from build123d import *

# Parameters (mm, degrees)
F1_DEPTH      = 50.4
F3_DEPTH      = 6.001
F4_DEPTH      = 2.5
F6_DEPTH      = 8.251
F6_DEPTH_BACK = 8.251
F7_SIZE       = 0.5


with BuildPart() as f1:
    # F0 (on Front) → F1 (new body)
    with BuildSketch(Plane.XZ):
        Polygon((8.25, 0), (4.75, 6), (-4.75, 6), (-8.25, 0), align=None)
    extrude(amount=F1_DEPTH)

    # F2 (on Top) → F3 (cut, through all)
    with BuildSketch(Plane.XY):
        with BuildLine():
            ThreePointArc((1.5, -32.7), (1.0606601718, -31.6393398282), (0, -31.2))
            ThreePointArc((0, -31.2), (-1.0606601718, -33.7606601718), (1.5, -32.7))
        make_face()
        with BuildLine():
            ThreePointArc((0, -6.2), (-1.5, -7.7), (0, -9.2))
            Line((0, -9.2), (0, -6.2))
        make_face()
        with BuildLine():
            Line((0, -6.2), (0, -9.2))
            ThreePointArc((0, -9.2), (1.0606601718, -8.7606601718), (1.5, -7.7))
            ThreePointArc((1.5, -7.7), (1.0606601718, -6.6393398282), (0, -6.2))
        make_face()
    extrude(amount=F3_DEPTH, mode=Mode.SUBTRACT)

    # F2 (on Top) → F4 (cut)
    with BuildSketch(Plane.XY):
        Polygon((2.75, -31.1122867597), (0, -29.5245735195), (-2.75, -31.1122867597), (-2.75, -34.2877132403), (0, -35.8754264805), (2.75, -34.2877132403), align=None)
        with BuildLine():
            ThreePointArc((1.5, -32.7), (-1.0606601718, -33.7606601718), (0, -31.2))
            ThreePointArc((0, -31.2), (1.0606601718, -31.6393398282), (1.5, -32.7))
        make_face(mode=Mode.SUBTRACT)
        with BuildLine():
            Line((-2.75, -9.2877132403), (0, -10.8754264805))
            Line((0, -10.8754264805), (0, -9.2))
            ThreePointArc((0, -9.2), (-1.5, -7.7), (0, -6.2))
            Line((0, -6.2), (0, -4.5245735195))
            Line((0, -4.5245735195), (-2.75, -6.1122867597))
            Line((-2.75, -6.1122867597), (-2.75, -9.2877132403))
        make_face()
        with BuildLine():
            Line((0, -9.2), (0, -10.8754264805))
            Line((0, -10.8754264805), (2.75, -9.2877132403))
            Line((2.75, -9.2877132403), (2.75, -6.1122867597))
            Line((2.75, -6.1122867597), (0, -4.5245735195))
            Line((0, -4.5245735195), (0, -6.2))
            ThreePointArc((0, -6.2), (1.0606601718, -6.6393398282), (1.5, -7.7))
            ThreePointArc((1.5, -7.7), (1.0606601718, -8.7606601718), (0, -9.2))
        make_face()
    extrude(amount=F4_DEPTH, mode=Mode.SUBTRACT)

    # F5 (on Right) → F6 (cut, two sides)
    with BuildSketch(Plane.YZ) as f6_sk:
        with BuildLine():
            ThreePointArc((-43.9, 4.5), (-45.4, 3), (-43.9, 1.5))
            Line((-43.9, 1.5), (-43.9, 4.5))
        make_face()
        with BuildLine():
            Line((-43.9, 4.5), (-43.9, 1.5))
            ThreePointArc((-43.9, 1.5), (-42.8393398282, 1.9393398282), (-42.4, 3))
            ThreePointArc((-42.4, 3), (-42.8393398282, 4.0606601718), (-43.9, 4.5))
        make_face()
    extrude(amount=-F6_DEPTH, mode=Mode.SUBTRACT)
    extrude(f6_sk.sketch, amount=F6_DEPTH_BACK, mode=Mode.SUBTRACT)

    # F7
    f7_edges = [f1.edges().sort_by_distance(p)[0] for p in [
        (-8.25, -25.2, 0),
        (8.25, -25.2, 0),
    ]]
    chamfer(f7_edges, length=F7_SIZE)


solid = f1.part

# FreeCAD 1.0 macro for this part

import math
import FreeCAD as App
import Part
import Sketcher
from FreeCAD import Vector
Q = App.Units.Quantity


def edges_at(feature, points):
    """Names of the edges that pass closest to the given points."""
    edges = feature.Shape.Edges
    near = lambda p: min(range(len(edges)), key=lambda i: edges[i].distToShape(Part.Vertex(*p))[0])
    return sorted({f"Edge{near(p) + 1}" for p in points})

doc = App.newDocument("Part")
body = doc.addObject("PartDesign::Body", "Body")

sketch1 = body.newObject("Sketcher::SketchObject", "Sketch")
sketch1.AttachmentSupport = (doc.getObject("XZ_Plane"), [""])
sketch1.MapMode = "FlatFace"
sketch1.addGeometry([
    Part.LineSegment(Vector(8, 0, 0), Vector(5, 6, 0)),
    Part.LineSegment(Vector(5, 6, 0), Vector(-5, 6, 0)),
    Part.LineSegment(Vector(-5, 6, 0), Vector(-8, 0, 0)),
    Part.LineSegment(Vector(-8, 0, 0), Vector(8, 0, 0)),
], False)
sketch1.addConstraint([
    Sketcher.Constraint("Coincident", 0, 2, 1, 1),
    Sketcher.Constraint("Coincident", 1, 2, 2, 1),
    Sketcher.Constraint("Coincident", 2, 2, 3, 1),
    Sketcher.Constraint("Coincident", 3, 2, 0, 1),
    Sketcher.Constraint("Horizontal", 1),
    Sketcher.Constraint("Horizontal", 3),
    Sketcher.Constraint("Symmetric", 2, 2, 3, 2, -1, 1),
    Sketcher.Constraint("Equal", 0, 2),
    Sketcher.Constraint("DistanceX", 1, 2, 1, 1, Q("9.5 mm")),
    Sketcher.Constraint("DistanceX", 3, 1, 3, 2, Q("16.5 mm")),
    Sketcher.Constraint("DistanceY", -1, 1, 0, 2, Q("6 mm")),
])
pad1 = body.newObject("PartDesign::Pad", "Pad")
pad1.Profile = sketch1
pad1.Length = 50.4

sketch2 = body.newObject("Sketcher::SketchObject", "Sketch001")
sketch2.AttachmentSupport = (doc.getObject("XY_Plane"), [""])
sketch2.MapMode = "FlatFace"
sketch2.addGeometry([
    Part.ArcOfCircle(Part.Circle(Vector(0, -32.7, 0), Vector(0, 0, 1), 1.5), math.radians(0), math.radians(90)),
    Part.ArcOfCircle(Part.Circle(Vector(0, -32.7, 0), Vector(0, 0, 1), 1.5), math.radians(90), math.radians(360)),
    Part.ArcOfCircle(Part.Circle(Vector(0, -7.7, 0), Vector(0, 0, 1), 1.5), math.radians(90), math.radians(270)),
    Part.ArcOfCircle(Part.Circle(Vector(0, -7.7, 0), Vector(0, 0, 1), 1.5), math.radians(-90), math.radians(0)),
    Part.ArcOfCircle(Part.Circle(Vector(0, -7.7, 0), Vector(0, 0, 1), 1.5), math.radians(0), math.radians(90)),
], False)
sketch2.addConstraint([
    Sketcher.Constraint("Tangent", 0, 1, 1, 2),
    Sketcher.Constraint("Coincident", 1, 1, 0, 2),
    Sketcher.Constraint("Tangent", 2, 2, 3, 1),
    Sketcher.Constraint("Tangent", 3, 2, 4, 1),
    Sketcher.Constraint("Tangent", 4, 2, 2, 1),
    Sketcher.Constraint("Equal", 1, 2),
    Sketcher.Constraint("PointOnObject", 0, 3, -2),
    Sketcher.Constraint("PointOnObject", 2, 3, -2),
    Sketcher.Constraint("PointOnObject", 1, 1, -2),
    Sketcher.Constraint("PointOnObject", 2, 2, -2),
    Sketcher.Constraint("PointOnObject", 4, 2, -2),
    Sketcher.Constraint("Horizontal", 1, 3, 0, 1),
    Sketcher.Constraint("Horizontal", 4, 3, 3, 2),
    Sketcher.Constraint("Radius", 0, Q("1.5 mm")),
    Sketcher.Constraint("DistanceY", 0, 3, 2, 3, Q("25 mm")),
    Sketcher.Constraint("DistanceY", 0, 3, -1, 1, Q("32.7 mm")),
])
pocket1 = body.newObject("PartDesign::Pocket", "Pocket")
pocket1.Profile = sketch2
pocket1.Type = "ThroughAll"
pocket1.Reversed = True

sketch3 = body.newObject("Sketcher::SketchObject", "Sketch002")
sketch3.AttachmentSupport = (doc.getObject("XY_Plane"), [""])
sketch3.MapMode = "FlatFace"
sketch3.addGeometry([
    Part.LineSegment(Vector(2.8, -31.1, 0), Vector(0, -29.5, 0)),
    Part.LineSegment(Vector(0, -29.5, 0), Vector(-2.8, -31.1, 0)),
    Part.LineSegment(Vector(-2.8, -31.1, 0), Vector(-2.8, -34.3, 0)),
    Part.LineSegment(Vector(-2.8, -34.3, 0), Vector(0, -35.9, 0)),
    Part.LineSegment(Vector(0, -35.9, 0), Vector(2.8, -34.3, 0)),
    Part.LineSegment(Vector(2.8, -34.3, 0), Vector(2.8, -31.1, 0)),
    Part.ArcOfCircle(Part.Circle(Vector(0, -32.7, 0), Vector(0, 0, 1), 1.5), math.radians(0), math.radians(90)),
    Part.ArcOfCircle(Part.Circle(Vector(0, -32.7, 0), Vector(0, 0, 1), 1.5), math.radians(90), math.radians(360)),
    Part.LineSegment(Vector(-2.8, -9.3, 0), Vector(0, -10.9, 0)),
    Part.LineSegment(Vector(0, -10.9, 0), Vector(2.8, -9.3, 0)),
    Part.LineSegment(Vector(2.8, -9.3, 0), Vector(2.8, -6.1, 0)),
    Part.LineSegment(Vector(2.8, -6.1, 0), Vector(0, -4.5, 0)),
    Part.LineSegment(Vector(0, -4.5, 0), Vector(-2.8, -6.1, 0)),
    Part.LineSegment(Vector(-2.8, -6.1, 0), Vector(-2.8, -9.3, 0)),
    Part.ArcOfCircle(Part.Circle(Vector(0, -7.7, 0), Vector(0, 0, 1), 1.5), math.radians(90), math.radians(270)),
    Part.ArcOfCircle(Part.Circle(Vector(0, -7.7, 0), Vector(0, 0, 1), 1.5), math.radians(0), math.radians(90)),
    Part.ArcOfCircle(Part.Circle(Vector(0, -7.7, 0), Vector(0, 0, 1), 1.5), math.radians(-90), math.radians(0)),
], False)
sketch3.addConstraint([
    Sketcher.Constraint("Coincident", 0, 2, 1, 1),
    Sketcher.Constraint("Coincident", 1, 2, 2, 1),
    Sketcher.Constraint("Coincident", 2, 2, 3, 1),
    Sketcher.Constraint("Coincident", 3, 2, 4, 1),
    Sketcher.Constraint("Coincident", 4, 2, 5, 1),
    Sketcher.Constraint("Coincident", 5, 2, 0, 1),
    Sketcher.Constraint("Tangent", 6, 1, 7, 2),
    Sketcher.Constraint("Coincident", 7, 1, 6, 2),
    Sketcher.Constraint("Coincident", 8, 2, 9, 1),
    Sketcher.Constraint("Coincident", 9, 2, 10, 1),
    Sketcher.Constraint("Coincident", 10, 2, 11, 1),
    Sketcher.Constraint("Coincident", 11, 2, 12, 1),
    Sketcher.Constraint("Coincident", 12, 2, 13, 1),
    Sketcher.Constraint("Coincident", 13, 2, 8, 1),
    Sketcher.Constraint("Tangent", 14, 1, 15, 2),
    Sketcher.Constraint("Tangent", 15, 1, 16, 2),
    Sketcher.Constraint("Tangent", 16, 1, 14, 2),
    Sketcher.Constraint("Vertical", 2),
    Sketcher.Constraint("Vertical", 5),
    Sketcher.Constraint("Vertical", 10),
    Sketcher.Constraint("Vertical", 13),
    Sketcher.Constraint("Equal", 7, 14),
    Sketcher.Constraint("Symmetric", 2, 2, 4, 2, -2),
    Sketcher.Constraint("Symmetric", 10, 2, 12, 2, -2),
    Sketcher.Constraint("PointOnObject", 6, 3, -2),
    Sketcher.Constraint("PointOnObject", 14, 3, -2),
    Sketcher.Constraint("PointOnObject", 0, 2, -2),
    Sketcher.Constraint("PointOnObject", 3, 2, -2),
    Sketcher.Constraint("PointOnObject", 7, 1, -2),
    Sketcher.Constraint("PointOnObject", 8, 2, -2),
    Sketcher.Constraint("PointOnObject", 11, 2, -2),
    Sketcher.Constraint("PointOnObject", 14, 1, -2),
    Sketcher.Constraint("PointOnObject", 16, 1, -2),
    Sketcher.Constraint("Parallel", 0, 3),
    Sketcher.Constraint("Parallel", 1, 4),
    Sketcher.Constraint("Parallel", 3, 8),
    Sketcher.Constraint("Parallel", 4, 9),
    Sketcher.Constraint("Parallel", 8, 11),
    Sketcher.Constraint("Horizontal", 7, 3, 6, 1),
    Sketcher.Constraint("Horizontal", 16, 3, 15, 1),
    Sketcher.Constraint("Vertical", 5, 2, 9, 2),
    Sketcher.Constraint("Equal", 5, 10),
    Sketcher.Constraint("Radius", 6, Q("1.5 mm")),
    Sketcher.Constraint("Angle", 0, Q("150 deg")),
    Sketcher.Constraint("DistanceY", 6, 3, 14, 3, Q("25 mm")),
    Sketcher.Constraint("DistanceY", 6, 3, -1, 1, Q("32.7 mm")),
    Sketcher.Constraint("DistanceX", 2, 2, 4, 2, Q("5.5 mm")),
    Sketcher.Constraint("DistanceY", 2, 2, 2, 1, Q("3.175426 mm")),
    Sketcher.Constraint("DistanceY", 0, 2, 9, 2, Q("20.23686 mm")),
    Sketcher.Constraint("DistanceY", 0, 2, -1, 1, Q("29.524574 mm")),
])
pocket2 = body.newObject("PartDesign::Pocket", "Pocket001")
pocket2.Profile = sketch3
pocket2.Length = 2.5
pocket2.Reversed = True

sketch4 = body.newObject("Sketcher::SketchObject", "Sketch003")
sketch4.AttachmentSupport = (doc.getObject("YZ_Plane"), [""])
sketch4.MapMode = "FlatFace"
sketch4.addGeometry([
    Part.ArcOfCircle(Part.Circle(Vector(-43.9, 3, 0), Vector(0, 0, 1), 1.5), math.radians(90), math.radians(270)),
    Part.ArcOfCircle(Part.Circle(Vector(-43.9, 3, 0), Vector(0, 0, 1), 1.5), math.radians(-90), math.radians(0)),
    Part.ArcOfCircle(Part.Circle(Vector(-43.9, 3, 0), Vector(0, 0, 1), 1.5), math.radians(0), math.radians(90)),
], False)
sketch4.addConstraint([
    Sketcher.Constraint("Tangent", 0, 2, 1, 1),
    Sketcher.Constraint("Tangent", 1, 2, 2, 1),
    Sketcher.Constraint("Tangent", 2, 2, 0, 1),
    Sketcher.Constraint("Horizontal", 2, 3, 1, 2),
    Sketcher.Constraint("Vertical", 2, 3, 0, 2),
    Sketcher.Constraint("Vertical", 0, 2, 2, 2),
    Sketcher.Constraint("Radius", 0, Q("1.5 mm")),
    Sketcher.Constraint("DistanceY", -1, 1, 0, 3, Q("3 mm")),
    Sketcher.Constraint("DistanceX", 0, 3, -1, 1, Q("43.9 mm")),
])
pocket3 = body.newObject("PartDesign::Pocket", "Pocket002")
pocket3.Profile = sketch4
pocket3.Type = "ThroughAll"
pocket3.Midplane = True
doc.recompute()

chamfer = body.newObject("PartDesign::Chamfer", "Chamfer")
chamfer.Base = (pocket3, edges_at(pocket3, [(-8.25, -25.2, 0), (8.25, -25.2, 0)]))
chamfer.Size = 0.5

doc.recompute()
